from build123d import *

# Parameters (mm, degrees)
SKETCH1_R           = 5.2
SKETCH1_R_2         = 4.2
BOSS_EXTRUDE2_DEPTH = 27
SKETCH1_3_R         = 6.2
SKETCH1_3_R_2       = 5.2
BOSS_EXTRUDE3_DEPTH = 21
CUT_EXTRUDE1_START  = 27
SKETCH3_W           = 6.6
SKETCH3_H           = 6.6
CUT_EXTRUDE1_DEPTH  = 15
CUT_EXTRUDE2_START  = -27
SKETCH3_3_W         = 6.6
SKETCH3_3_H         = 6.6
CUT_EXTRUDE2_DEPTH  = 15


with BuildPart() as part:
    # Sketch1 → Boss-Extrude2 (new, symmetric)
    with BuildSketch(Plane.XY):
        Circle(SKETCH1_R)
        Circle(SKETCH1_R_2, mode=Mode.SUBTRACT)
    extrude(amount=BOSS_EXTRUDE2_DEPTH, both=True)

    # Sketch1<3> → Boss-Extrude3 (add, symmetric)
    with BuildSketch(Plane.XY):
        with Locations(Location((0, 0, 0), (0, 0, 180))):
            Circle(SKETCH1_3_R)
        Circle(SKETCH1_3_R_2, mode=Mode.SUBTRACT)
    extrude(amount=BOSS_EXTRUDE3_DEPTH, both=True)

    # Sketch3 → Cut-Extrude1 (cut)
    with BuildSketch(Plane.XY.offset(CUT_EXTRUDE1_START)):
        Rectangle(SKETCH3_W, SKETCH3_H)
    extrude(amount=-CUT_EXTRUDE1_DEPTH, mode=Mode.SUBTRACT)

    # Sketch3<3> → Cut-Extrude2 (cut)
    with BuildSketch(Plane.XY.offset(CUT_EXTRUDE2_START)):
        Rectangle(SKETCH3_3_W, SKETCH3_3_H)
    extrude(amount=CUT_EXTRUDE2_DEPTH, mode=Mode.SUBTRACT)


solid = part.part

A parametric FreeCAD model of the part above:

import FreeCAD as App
import Part
import Sketcher
Q = App.Units.Quantity


def add_polygon(sketch, points):
    """Adds a closed chain of lines whose ends are joined by coincident constraints."""
    first, n = sketch.GeometryCount, len(points)
    for a, b in zip(points, points[1:] + points[:1]):
        sketch.addGeometry(Part.LineSegment(App.Vector(*a, 0), App.Vector(*b, 0)), False)
    for i in range(n):
        sketch.addConstraint(Sketcher.Constraint("Coincident", first + i, 2, first + (i + 1) % n, 1))

doc = App.newDocument("Part")
body = doc.addObject("PartDesign::Body", "Body")

# Sketch on XY plane
sketch1 = body.newObject("Sketcher::SketchObject", "Sketch")
sketch1.AttachmentSupport = (doc.getObject("XY_Plane"), [""])
sketch1.MapMode = "FlatFace"
sketch1.addGeometry([
    Part.Circle(App.Vector(0, 0, 0), App.Vector(0, 0, 1), 5.2),
    Part.Circle(App.Vector(0, 0, 0), App.Vector(0, 0, 1), 4.2),
], False)
sketch1.addConstraint([
    Sketcher.Constraint("Coincident", 0, 3, -1, 1),
    Sketcher.Constraint("Coincident", 1, 3, -1, 1),
    Sketcher.Constraint("Diameter", 0, Q("10.4 mm")),
    Sketcher.Constraint("Diameter", 1, Q("8.4 mm")),
])
pad1 = body.newObject("PartDesign::Pad", "Pad")
pad1.Profile = sketch1
pad1.Length = 54
pad1.Midplane = True

# Sketch on XY plane
sketch2 = body.newObject("Sketcher::SketchObject", "Sketch001")
sketch2.AttachmentSupport = (doc.getObject("XY_Plane"), [""])
sketch2.MapMode = "FlatFace"
sketch2.addGeometry([
    Part.Circle(App.Vector(0, 0, 0), App.Vector(0, 0, 1), 6.2),
    Part.Circle(App.Vector(0, 0, 0), App.Vector(0, 0, 1), 5.2),
], False)
sketch2.addConstraint([
    Sketcher.Constraint("Coincident", 0, 3, -1, 1),
    Sketcher.Constraint("Coincident", 1, 3, -1, 1),
    Sketcher.Constraint("Diameter", 0, Q("12.4 mm")),
    Sketcher.Constraint("Diameter", 1, Q("10.4 mm")),
])
pad2 = body.newObject("PartDesign::Pad", "Pad001")
pad2.Profile = sketch2
pad2.Length = 42
pad2.Midplane = True

# Sketch on XY plane
sketch3 = body.newObject("Sketcher::SketchObject", "Sketch002")
sketch3.AttachmentSupport = (doc.getObject("XY_Plane"), [""])
sketch3.MapMode = "FlatFace"
sketch3.AttachmentOffset = App.Placement(App.Vector(0, 0, 27), App.Rotation())
add_polygon(sketch3, [(-3.3, 3.3), (-3.3, -3.3), (3.3, -3.3), (3.3, 3.3)])  # lines 0-3
sketch3.addConstraint([
    Sketcher.Constraint("Vertical", 0),
    Sketcher.Constraint("Horizontal", 1),
    Sketcher.Constraint("Vertical", 2),
    Sketcher.Constraint("Horizontal", 3),
    Sketcher.Constraint("Symmetric", 0, 2, 2, 2, -1, 1),
    Sketcher.Constraint("Equal", 3, 0),
    Sketcher.Constraint("DistanceX", 1, 1, 1, 2, Q("6.6 mm")),
])
pocket1 = body.newObject("PartDesign::Pocket", "Pocket")
pocket1.Profile = sketch3
pocket1.Length = 15

# Sketch on XY plane
sketch4 = body.newObject("Sketcher::SketchObject", "Sketch003")
sketch4.AttachmentSupport = (doc.getObject("XY_Plane"), [""])
sketch4.MapMode = "FlatFace"
sketch4.AttachmentOffset = App.Placement(App.Vector(0, 0, -27), App.Rotation())
add_polygon(sketch4, [(-3.3, 3.3), (-3.3, -3.3), (3.3, -3.3), (3.3, 3.3)])  # lines 0-3
sketch4.addConstraint([
    Sketcher.Constraint("Vertical", 0),
    Sketcher.Constraint("Horizontal", 1),
    Sketcher.Constraint("Vertical", 2),
    Sketcher.Constraint("Horizontal", 3),
    Sketcher.Constraint("Symmetric", 0, 2, 2, 2, -1, 1),
    Sketcher.Constraint("Equal", 3, 0),
    Sketcher.Constraint("DistanceX", 1, 1, 1, 2, Q("6.6 mm")),
])
pocket2 = body.newObject("PartDesign::Pocket", "Pocket001")
pocket2.Profile = sketch4
pocket2.Length = 15
pocket2.Reversed = True

doc.recompute()
